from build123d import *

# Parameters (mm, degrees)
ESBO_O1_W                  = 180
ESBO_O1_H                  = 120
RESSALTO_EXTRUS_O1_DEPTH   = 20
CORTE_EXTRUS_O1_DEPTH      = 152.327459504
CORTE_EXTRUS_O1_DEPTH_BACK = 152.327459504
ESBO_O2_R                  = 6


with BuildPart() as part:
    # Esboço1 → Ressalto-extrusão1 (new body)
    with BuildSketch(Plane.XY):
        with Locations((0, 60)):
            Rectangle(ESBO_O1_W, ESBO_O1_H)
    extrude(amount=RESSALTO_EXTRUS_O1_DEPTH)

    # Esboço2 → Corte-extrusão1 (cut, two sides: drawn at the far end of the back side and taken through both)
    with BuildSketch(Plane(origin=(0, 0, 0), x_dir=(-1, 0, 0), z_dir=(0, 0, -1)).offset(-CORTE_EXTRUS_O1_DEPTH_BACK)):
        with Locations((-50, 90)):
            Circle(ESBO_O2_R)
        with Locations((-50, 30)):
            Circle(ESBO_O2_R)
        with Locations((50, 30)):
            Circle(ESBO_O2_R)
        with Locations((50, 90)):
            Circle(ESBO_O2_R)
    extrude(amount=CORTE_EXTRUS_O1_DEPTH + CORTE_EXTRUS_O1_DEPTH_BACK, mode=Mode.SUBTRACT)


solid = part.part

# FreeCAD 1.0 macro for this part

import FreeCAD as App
import Part
import Sketcher

V = App.Vector

doc = App.newDocument("Part")
body = doc.addObject("PartDesign::Body", "Body")

# Sketch on XY plane
sketch1 = body.newObject("Sketcher::SketchObject", "Sketch")
sketch1.AttachmentSupport = (doc.getObject("XY_Plane"), [""])
sketch1.MapMode = "FlatFace"
sketch1.addGeometry(Part.LineSegment(V(-90, 120, 0), V(-90, 0, 0)), False)
sketch1.addGeometry(Part.LineSegment(V(-90, 0, 0), V(90, 0, 0)), False)
sketch1.addGeometry(Part.LineSegment(V(90, 0, 0), V(90, 120, 0)), False)
sketch1.addGeometry(Part.LineSegment(V(90, 120, 0), V(-90, 120, 0)), False)
sketch1.addConstraint(Sketcher.Constraint("Coincident", 0, 2, 1, 1))
sketch1.addConstraint(Sketcher.Constraint("Coincident", 1, 2, 2, 1))
sketch1.addConstraint(Sketcher.Constraint("Coincident", 2, 2, 3, 1))
sketch1.addConstraint(Sketcher.Constraint("Coincident", 3, 2, 0, 1))
sketch1.addConstraint(Sketcher.Constraint("Vertical", 0))
sketch1.addConstraint(Sketcher.Constraint("Horizontal", 1))
sketch1.addConstraint(Sketcher.Constraint("Vertical", 2))
sketch1.addConstraint(Sketcher.Constraint("Horizontal", 3))
sketch1.addConstraint(Sketcher.Constraint("Symmetric", 0, 2, 1, 2, -1, 1))
sketch1.addConstraint(Sketcher.Constraint("DistanceX", 1, 1, 1, 2, 180.0))
sketch1.addConstraint(Sketcher.Constraint("DistanceY", 0, 2, 0, 1, 120.0))
pad1 = body.newObject("PartDesign::Pad", "Pad")
pad1.Profile = sketch1
pad1.Length = 20

# Sketch on XY plane
sketch2 = body.newObject("Sketcher::SketchObject", "Sketch001")
sketch2.AttachmentSupport = (doc.getObject("XY_Plane"), [""])
sketch2.MapMode = "FlatFace"
sketch2.addGeometry(Part.Circle(V(50, 90, 0), V(0, 0, 1), 6), False)
sketch2.addGeometry(Part.Circle(V(50, 30, 0), V(0, 0, 1), 6), False)
sketch2.addGeometry(Part.Circle(V(-50, 30, 0), V(0, 0, 1), 6), False)
sketch2.addGeometry(Part.Circle(V(-50, 90, 0), V(0, 0, 1), 6), False)
sketch2.addConstraint(Sketcher.Constraint("Equal", 0, 1))
sketch2.addConstraint(Sketcher.Constraint("Equal", 1, 2))
sketch2.addConstraint(Sketcher.Constraint("Equal", 2, 3))
sketch2.addConstraint(Sketcher.Constraint("Symmetric", 1, 3, 2, 3, -2))
sketch2.addConstraint(Sketcher.Constraint("Symmetric", 0, 3, 3, 3, -2))
sketch2.addConstraint(Sketcher.Constraint("Vertical", 0, 3, 1, 3))
sketch2.addConstraint(Sketcher.Constraint("Diameter", 0, 12.0))
sketch2.addConstraint(Sketcher.Constraint("DistanceX", -1, 1, 0, 3, 50.0))
sketch2.addConstraint(Sketcher.Constraint("DistanceY", -1, 1, 0, 3, 90.0))
sketch2.addConstraint(Sketcher.Constraint("DistanceY", -1, 1, 1, 3, 30.0))
pocket1 = body.newObject("PartDesign::Pocket", "Pocket")
pocket1.Profile = sketch2
pocket1.Type = "ThroughAll"
pocket1.Midplane = True

doc.recompute()
